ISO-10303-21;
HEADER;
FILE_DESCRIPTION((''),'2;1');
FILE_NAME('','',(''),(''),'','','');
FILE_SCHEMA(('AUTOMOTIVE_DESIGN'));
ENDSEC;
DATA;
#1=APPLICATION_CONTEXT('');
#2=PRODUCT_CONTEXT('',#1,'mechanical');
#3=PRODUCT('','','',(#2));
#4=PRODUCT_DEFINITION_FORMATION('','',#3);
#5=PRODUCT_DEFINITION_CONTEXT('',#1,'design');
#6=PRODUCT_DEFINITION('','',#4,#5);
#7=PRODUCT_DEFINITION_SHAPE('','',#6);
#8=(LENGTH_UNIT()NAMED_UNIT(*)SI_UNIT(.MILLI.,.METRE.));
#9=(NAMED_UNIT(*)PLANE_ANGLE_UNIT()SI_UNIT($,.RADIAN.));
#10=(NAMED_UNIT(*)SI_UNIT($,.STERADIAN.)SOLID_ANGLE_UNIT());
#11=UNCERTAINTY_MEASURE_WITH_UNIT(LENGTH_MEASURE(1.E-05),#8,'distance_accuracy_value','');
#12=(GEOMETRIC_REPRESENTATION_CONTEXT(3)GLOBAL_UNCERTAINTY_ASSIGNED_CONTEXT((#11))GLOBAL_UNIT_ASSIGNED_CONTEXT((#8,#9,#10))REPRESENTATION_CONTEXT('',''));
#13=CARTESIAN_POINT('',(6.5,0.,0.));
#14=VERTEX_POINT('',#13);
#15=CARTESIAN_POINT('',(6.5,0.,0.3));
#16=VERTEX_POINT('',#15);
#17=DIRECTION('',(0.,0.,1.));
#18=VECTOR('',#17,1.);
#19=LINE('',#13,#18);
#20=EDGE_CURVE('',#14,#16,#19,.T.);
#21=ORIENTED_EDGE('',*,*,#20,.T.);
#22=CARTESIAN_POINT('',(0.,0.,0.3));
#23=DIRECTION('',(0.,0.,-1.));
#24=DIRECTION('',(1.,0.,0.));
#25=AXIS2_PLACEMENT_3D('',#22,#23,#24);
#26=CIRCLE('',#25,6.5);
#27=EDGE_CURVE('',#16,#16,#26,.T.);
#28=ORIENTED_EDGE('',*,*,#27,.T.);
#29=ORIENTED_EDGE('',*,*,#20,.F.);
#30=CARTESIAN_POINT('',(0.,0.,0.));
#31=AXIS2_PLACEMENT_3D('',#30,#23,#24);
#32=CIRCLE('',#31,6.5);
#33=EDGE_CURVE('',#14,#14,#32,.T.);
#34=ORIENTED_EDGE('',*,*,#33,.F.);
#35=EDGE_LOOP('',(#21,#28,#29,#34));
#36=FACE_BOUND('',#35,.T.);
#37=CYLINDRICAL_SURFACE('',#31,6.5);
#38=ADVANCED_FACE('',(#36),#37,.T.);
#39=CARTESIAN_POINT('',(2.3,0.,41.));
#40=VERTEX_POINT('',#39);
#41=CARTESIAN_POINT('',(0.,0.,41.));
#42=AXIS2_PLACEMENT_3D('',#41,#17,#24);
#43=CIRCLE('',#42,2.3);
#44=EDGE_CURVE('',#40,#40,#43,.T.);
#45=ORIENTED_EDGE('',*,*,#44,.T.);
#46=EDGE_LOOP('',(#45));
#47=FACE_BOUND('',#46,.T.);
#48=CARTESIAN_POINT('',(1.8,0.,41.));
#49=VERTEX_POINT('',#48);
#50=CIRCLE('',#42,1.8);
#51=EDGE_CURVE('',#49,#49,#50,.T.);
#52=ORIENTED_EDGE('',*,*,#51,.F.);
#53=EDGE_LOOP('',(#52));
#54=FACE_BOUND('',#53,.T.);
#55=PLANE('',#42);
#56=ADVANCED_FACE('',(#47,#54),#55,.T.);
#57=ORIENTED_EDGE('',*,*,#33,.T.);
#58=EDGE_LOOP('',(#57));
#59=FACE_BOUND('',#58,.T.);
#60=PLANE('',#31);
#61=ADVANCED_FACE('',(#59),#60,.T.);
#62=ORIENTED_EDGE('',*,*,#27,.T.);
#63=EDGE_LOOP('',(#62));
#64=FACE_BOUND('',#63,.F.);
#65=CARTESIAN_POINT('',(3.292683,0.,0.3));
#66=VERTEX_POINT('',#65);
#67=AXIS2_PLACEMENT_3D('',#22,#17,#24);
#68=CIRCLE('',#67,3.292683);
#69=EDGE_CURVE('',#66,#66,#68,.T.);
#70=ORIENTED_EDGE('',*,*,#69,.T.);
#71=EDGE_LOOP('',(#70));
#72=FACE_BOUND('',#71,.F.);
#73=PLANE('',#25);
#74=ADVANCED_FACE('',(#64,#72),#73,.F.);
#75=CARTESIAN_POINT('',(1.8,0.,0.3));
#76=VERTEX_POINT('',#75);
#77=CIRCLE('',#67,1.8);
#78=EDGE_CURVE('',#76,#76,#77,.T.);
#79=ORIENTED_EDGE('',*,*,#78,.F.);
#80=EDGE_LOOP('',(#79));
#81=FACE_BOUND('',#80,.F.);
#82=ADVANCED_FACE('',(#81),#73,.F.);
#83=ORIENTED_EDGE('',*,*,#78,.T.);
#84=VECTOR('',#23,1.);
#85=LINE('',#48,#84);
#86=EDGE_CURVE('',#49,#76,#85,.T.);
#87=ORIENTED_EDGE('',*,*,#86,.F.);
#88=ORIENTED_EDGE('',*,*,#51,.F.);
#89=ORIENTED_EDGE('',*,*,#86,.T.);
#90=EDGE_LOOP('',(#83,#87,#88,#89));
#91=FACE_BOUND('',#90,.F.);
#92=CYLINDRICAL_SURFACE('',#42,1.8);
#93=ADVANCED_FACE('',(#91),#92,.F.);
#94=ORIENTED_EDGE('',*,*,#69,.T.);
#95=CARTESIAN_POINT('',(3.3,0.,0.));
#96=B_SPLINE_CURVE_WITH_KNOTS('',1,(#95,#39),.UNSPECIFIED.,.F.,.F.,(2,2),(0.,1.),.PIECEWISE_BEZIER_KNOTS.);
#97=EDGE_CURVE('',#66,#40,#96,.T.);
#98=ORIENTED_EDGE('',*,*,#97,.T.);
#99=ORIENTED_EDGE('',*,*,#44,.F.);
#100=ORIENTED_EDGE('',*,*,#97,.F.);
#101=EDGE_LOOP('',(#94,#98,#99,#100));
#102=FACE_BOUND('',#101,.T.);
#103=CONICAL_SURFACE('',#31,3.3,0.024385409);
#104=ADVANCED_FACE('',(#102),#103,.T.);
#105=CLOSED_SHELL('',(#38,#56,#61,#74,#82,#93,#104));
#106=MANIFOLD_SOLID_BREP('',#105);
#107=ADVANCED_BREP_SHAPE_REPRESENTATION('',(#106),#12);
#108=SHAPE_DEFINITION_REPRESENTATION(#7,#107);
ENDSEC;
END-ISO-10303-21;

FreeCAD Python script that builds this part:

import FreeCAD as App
import Part
import Sketcher
from FreeCAD import Vector

doc = App.newDocument("Part")
body = doc.addObject("PartDesign::Body", "Body")

sketch1 = body.newObject("Sketcher::SketchObject", "Sketch")
sketch1.AttachmentSupport = (doc.getObject("XY_Plane"), [""])
sketch1.MapMode = "FlatFace"
sketch1.addGeometry(Part.Circle(Vector(0, 0, 0), Vector(0, 0, 1), 3.3), False)
sketch1.addConstraint(Sketcher.Constraint("Coincident", 0, 3, -1, 1))
sketch1.addConstraint(Sketcher.Constraint("Diameter", 0, 6.6))

sketch2 = body.newObject("Sketcher::SketchObject", "Sketch001")
sketch2.AttachmentSupport = (doc.getObject("XY_Plane"), [""])
sketch2.MapMode = "FlatFace"
sketch2.AttachmentOffset = App.Placement(Vector(0, 0, 41), App.Rotation())
sketch2.addGeometry(Part.Circle(Vector(0, 0, 0), Vector(0, 0, 1), 2.3), False)
sketch2.addConstraint(Sketcher.Constraint("Coincident", 0, 3, -1, 1))
sketch2.addConstraint(Sketcher.Constraint("Diameter", 0, 4.6))

additiveloft = body.newObject("PartDesign::AdditiveLoft", "AdditiveLoft")
additiveloft.Profile = sketch1
additiveloft.Sections = [sketch2]

sketch3 = body.newObject("Sketcher::SketchObject", "Sketch002")
sketch3.AttachmentSupport = (doc.getObject("XY_Plane"), [""])
sketch3.MapMode = "FlatFace"
sketch3.AttachmentOffset = App.Placement(Vector(0, 0, 41), App.Rotation())
sketch3.addGeometry(Part.Circle(Vector(0, 0, 0), Vector(0, 0, 1), 1.8), False)
sketch3.addConstraint(Sketcher.Constraint("Coincident", 0, 3, -1, 1))
sketch3.addConstraint(Sketcher.Constraint("Diameter", 0, 3.6))
pocket1 = body.newObject("PartDesign::Pocket", "Pocket")
pocket1.Profile = sketch3
pocket1.Type = "ThroughAll"

sketch4 = body.newObject("Sketcher::SketchObject", "Sketch003")
sketch4.AttachmentSupport = (doc.getObject("XY_Plane"), [""])
sketch4.MapMode = "FlatFace"
sketch4.addGeometry(Part.Circle(Vector(0, 0, 0), Vector(0, 0, 1), 6.5), False)
sketch4.addConstraint(Sketcher.Constraint("Coincident", 0, 3, -1, 1))
sketch4.addConstraint(Sketcher.Constraint("Diameter", 0, 13.0))
pad1 = body.newObject("PartDesign::Pad", "Pad")
pad1.Profile = sketch4
pad1.Length = 0.3

doc.recompute()
